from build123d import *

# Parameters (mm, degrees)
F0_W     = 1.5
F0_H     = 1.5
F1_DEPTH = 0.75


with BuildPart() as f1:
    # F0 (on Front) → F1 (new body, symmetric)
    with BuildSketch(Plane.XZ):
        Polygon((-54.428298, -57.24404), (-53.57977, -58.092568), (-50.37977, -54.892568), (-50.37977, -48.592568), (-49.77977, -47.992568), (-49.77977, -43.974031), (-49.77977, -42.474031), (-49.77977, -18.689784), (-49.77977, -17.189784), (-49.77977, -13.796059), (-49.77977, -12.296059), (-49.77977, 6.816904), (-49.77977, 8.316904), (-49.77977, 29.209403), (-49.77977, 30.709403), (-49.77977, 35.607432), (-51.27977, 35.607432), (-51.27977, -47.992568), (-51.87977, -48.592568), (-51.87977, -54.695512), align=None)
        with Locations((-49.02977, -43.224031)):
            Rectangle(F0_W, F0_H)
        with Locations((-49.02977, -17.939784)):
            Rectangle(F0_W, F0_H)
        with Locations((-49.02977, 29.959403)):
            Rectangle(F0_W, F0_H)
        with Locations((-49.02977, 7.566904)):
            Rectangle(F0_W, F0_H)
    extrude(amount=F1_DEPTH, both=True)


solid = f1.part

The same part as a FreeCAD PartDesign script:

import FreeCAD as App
import Part
import Sketcher
from FreeCAD import Vector
Q = App.Units.Quantity


def add_polygon(sketch, points):
    """Adds a closed chain of lines whose ends are joined by coincident constraints."""
    first, n = sketch.GeometryCount, len(points)
    for a, b in zip(points, points[1:] + points[:1]):
        sketch.addGeometry(Part.LineSegment(App.Vector(*a, 0), App.Vector(*b, 0)), False)
    for i in range(n):
        sketch.addConstraint(Sketcher.Constraint("Coincident", first + i, 2, first + (i + 1) % n, 1))

doc = App.newDocument("Part")
body = doc.addObject("PartDesign::Body", "Body")

# Sketch on XZ plane
sketch1 = doc.addObject("Sketcher::SketchObject", "Sketch")
body.addObject(sketch1)
sketch1.AttachmentSupport = (doc.XZ_Plane, [""])
sketch1.MapMode = "FlatFace"
add_polygon(sketch1, [(-54.428298, -57.24404), (-53.57977, -58.092568), (-50.37977, -54.892568), (-50.37977, -48.592568), (-49.77977, -47.992568), (-49.77977, -43.974031), (-48.27977, -43.974031), (-48.27977, -42.474031), (-49.77977, -42.474031), (-49.77977, -18.689784), (-48.27977, -18.689784), (-48.27977, -17.189784), (-49.77977, -17.189784), (-49.77977, 6.816904), (-48.27977, 6.816904), (-48.27977, 8.316904), (-49.77977, 8.316904), (-49.77977, 29.209403), (-48.27977, 29.209403), (-48.27977, 30.709403), (-49.77977, 30.709403), (-49.77977, 35.607432), (-51.27977, 35.607432), (-51.27977, -47.992568), (-51.87977, -48.592568), (-51.87977, -54.695512)])  # lines 0-25
sketch1.addConstraint(Sketcher.Constraint("Vertical", 2))
sketch1.addConstraint(Sketcher.Constraint("Vertical", 4))
sketch1.addConstraint(Sketcher.Constraint("Horizontal", 5))
sketch1.addConstraint(Sketcher.Constraint("Vertical", 6))
sketch1.addConstraint(Sketcher.Constraint("Horizontal", 7))
sketch1.addConstraint(Sketcher.Constraint("Vertical", 8))
sketch1.addConstraint(Sketcher.Constraint("Horizontal", 9))
sketch1.addConstraint(Sketcher.Constraint("Vertical", 10))
sketch1.addConstraint(Sketcher.Constraint("Horizontal", 11))
sketch1.addConstraint(Sketcher.Constraint("Vertical", 12))
sketch1.addConstraint(Sketcher.Constraint("Horizontal", 13))
sketch1.addConstraint(Sketcher.Constraint("Vertical", 14))
sketch1.addConstraint(Sketcher.Constraint("Horizontal", 15))
sketch1.addConstraint(Sketcher.Constraint("Vertical", 16))
sketch1.addConstraint(Sketcher.Constraint("Horizontal", 17))
sketch1.addConstraint(Sketcher.Constraint("Vertical", 18))
sketch1.addConstraint(Sketcher.Constraint("Horizontal", 19))
sketch1.addConstraint(Sketcher.Constraint("Vertical", 20))
sketch1.addConstraint(Sketcher.Constraint("Horizontal", 21))
sketch1.addConstraint(Sketcher.Constraint("Vertical", 22))
sketch1.addConstraint(Sketcher.Constraint("Vertical", 24))
sketch1.addConstraint(Sketcher.Constraint("Perpendicular", 0, 1))
sketch1.addConstraint(Sketcher.Constraint("Parallel", 1, 3))
sketch1.addConstraint(Sketcher.Constraint("Parallel", 3, 23))
sketch1.addConstraint(Sketcher.Constraint("Parallel", 23, 25))
sketch1.addConstraint(Sketcher.Constraint("Horizontal", 3, 2, 22, 2))
sketch1.addConstraint(Sketcher.Constraint("Horizontal", 2, 2, 23, 2))
sketch1.addConstraint(Sketcher.Constraint("Vertical", 4, 2, 7, 2))
sketch1.addConstraint(Sketcher.Constraint("Vertical", 6, 2, 9, 2))
sketch1.addConstraint(Sketcher.Constraint("Vertical", 8, 2, 11, 2))
sketch1.addConstraint(Sketcher.Constraint("Vertical", 10, 2, 13, 2))
sketch1.addConstraint(Sketcher.Constraint("Vertical", 12, 2, 15, 2))
sketch1.addConstraint(Sketcher.Constraint("Vertical", 14, 2, 17, 2))
sketch1.addConstraint(Sketcher.Constraint("Vertical", 16, 2, 19, 2))
sketch1.addConstraint(Sketcher.Constraint("Equal", 19, 21))
sketch1.addConstraint(Sketcher.Constraint("Equal", 21, 6))
sketch1.addConstraint(Sketcher.Constraint("Equal", 6, 10))
sketch1.addConstraint(Sketcher.Constraint("Equal", 10, 14))
sketch1.addConstraint(Sketcher.Constraint("Equal", 14, 18))
sketch1.addConstraint(Sketcher.Constraint("Angle", 0, Q("-45 deg")))
sketch1.addConstraint(Sketcher.Constraint("DistanceX", 5, 1, 5, 2, Q("1.5 mm")))
sketch1.addConstraint(Sketcher.Constraint("DistanceY", 2, 1, 2, 2, Q("6.3 mm")))
sketch1.addConstraint(Sketcher.Constraint("DistanceY", 22, 2, 22, 1, Q("83.6 mm")))
sketch1.addConstraint(Sketcher.Constraint("Distance", 0, Q("1.2 mm")))
sketch1.addConstraint(Sketcher.Constraint("DistanceX", 0, 2, 1, 2, Q("3.2 mm")))
sketch1.addConstraint(Sketcher.Constraint("DistanceX", 2, 2, 3, 2, Q("0.6 mm")))
sketch1.addConstraint(Sketcher.Constraint("DistanceY", 16, 1, 16, 2, Q("20.892499 mm")))
sketch1.addConstraint(Sketcher.Constraint("DistanceY", 12, 1, 12, 2, Q("24.006688 mm")))
sketch1.addConstraint(Sketcher.Constraint("DistanceY", 20, 1, 20, 2, Q("4.898029 mm")))
sketch1.addConstraint(Sketcher.Constraint("DistanceY", 4, 1, 4, 2, Q("4.018537 mm")))
sketch1.addConstraint(Sketcher.Constraint("DistanceX", 0, 2, -1, 1, Q("53.57977 mm")))
sketch1.addConstraint(Sketcher.Constraint("DistanceY", 4, 2, -1, 1, Q("43.974031 mm")))
pad1 = doc.addObject("PartDesign::Pad", "Pad")
body.addObject(pad1)
pad1.Profile = sketch1
pad1.Length = 1.5
pad1.Midplane = True

doc.recompute()
